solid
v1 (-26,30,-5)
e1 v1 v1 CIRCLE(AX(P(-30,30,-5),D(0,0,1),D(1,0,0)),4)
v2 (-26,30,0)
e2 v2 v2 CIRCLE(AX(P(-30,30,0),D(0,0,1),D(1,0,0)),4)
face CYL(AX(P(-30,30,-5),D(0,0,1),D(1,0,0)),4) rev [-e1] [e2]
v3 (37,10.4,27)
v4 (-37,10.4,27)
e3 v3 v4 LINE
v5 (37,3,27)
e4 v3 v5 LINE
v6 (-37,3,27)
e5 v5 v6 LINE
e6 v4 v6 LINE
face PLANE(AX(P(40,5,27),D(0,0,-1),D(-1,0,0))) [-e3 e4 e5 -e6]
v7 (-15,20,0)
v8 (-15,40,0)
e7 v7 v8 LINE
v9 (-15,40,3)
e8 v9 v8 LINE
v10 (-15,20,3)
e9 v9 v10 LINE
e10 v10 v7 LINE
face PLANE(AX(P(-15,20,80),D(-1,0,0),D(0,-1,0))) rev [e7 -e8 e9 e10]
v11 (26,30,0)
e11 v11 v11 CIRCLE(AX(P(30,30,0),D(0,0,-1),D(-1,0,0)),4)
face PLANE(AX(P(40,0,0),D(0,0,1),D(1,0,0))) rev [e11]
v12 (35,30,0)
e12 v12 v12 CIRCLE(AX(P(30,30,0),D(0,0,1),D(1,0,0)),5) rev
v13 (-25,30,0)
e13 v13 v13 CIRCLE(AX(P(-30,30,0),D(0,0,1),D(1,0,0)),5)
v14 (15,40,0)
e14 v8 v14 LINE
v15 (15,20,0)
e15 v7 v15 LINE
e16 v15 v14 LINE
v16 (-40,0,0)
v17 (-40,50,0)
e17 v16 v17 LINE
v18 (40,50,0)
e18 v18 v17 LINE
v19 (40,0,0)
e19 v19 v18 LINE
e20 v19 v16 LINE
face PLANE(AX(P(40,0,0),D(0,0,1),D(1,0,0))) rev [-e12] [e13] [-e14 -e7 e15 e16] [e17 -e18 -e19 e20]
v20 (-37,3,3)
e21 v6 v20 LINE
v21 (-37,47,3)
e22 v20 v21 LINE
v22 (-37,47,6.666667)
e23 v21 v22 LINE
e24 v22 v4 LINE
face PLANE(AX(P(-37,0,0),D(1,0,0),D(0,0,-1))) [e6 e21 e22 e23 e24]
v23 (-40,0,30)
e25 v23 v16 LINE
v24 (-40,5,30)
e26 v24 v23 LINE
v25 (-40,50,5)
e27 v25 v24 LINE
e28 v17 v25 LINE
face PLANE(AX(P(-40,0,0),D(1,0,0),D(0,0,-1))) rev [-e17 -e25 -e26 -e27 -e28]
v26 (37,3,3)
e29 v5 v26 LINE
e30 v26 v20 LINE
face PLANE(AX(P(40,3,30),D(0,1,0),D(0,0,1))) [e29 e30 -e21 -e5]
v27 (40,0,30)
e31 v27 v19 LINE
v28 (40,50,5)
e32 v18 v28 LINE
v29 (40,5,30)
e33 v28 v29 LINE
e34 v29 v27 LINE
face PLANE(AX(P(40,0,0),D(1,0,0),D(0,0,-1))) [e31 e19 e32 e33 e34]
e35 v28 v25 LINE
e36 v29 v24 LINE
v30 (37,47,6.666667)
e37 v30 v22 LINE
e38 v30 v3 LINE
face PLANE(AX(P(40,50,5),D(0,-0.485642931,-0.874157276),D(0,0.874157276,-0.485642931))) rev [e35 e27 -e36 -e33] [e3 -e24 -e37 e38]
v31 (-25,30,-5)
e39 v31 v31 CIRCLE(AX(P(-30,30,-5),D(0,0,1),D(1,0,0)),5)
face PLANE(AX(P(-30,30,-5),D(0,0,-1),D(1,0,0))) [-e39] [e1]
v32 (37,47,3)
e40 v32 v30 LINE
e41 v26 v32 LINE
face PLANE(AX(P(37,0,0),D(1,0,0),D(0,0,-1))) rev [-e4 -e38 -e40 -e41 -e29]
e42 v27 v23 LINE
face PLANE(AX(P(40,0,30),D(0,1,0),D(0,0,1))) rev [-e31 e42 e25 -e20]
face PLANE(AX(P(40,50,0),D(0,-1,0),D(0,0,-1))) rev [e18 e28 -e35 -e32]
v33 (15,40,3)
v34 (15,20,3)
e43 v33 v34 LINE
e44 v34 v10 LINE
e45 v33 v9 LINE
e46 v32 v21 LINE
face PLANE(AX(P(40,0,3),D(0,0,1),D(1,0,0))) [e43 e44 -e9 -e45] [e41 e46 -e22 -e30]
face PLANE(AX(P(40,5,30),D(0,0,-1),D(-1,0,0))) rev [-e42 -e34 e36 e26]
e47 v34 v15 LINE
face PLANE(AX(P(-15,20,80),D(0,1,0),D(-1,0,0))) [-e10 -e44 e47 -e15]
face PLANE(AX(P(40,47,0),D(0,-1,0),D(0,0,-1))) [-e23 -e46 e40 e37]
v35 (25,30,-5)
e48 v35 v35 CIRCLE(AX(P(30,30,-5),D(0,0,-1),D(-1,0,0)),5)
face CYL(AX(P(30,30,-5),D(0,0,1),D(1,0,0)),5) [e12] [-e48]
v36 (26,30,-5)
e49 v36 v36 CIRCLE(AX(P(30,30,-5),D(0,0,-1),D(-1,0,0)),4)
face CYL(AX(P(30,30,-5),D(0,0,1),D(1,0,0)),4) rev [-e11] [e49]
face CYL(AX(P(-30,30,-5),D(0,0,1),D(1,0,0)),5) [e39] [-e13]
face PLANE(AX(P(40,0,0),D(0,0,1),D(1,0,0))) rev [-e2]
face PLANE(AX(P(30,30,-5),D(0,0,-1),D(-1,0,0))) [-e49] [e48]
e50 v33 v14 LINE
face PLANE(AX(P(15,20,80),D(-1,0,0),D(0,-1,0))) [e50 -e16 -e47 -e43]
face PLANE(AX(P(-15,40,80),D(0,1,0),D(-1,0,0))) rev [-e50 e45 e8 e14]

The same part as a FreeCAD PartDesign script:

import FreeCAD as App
import Part
import Sketcher


def faces_at(feature, points):
    """Names of the faces that lie closest to the given points."""
    faces = feature.Shape.Faces
    near = lambda p: min(range(len(faces)), key=lambda i: faces[i].distToShape(Part.Vertex(*p))[0])
    return sorted({f"Face{near(p) + 1}" for p in points})


def add_polygon(sketch, points):
    """Adds a closed chain of lines whose ends are joined by coincident constraints."""
    first, n = sketch.GeometryCount, len(points)
    for a, b in zip(points, points[1:] + points[:1]):
        sketch.addGeometry(Part.LineSegment(App.Vector(*a, 0), App.Vector(*b, 0)), False)
    for i in range(n):
        sketch.addConstraint(Sketcher.Constraint("Coincident", first + i, 2, first + (i + 1) % n, 1))

doc = App.newDocument("Part")
params = doc.addObject("Spreadsheet::Sheet", "Params")
for row, (alias, value) in enumerate([
    ("sketch1_width", "50 mm"),
    ("sketch1_width2", "5 mm"),
    ("sketch1_height", "30 mm"),
    ("pad1_length", "80 mm"),
    ("thickness_wall", "3 mm"),
    ("sketch2_width", "30 mm"),
    ("sketch2_height", "20 mm"),
    ("pocket1_length", "80 mm"),
    ("sketch3_diameter", "10 mm"),
    ("sketch3_diameter2", "8 mm"),
    ("pad2_length", "5 mm"),
], start=1):
    params.set(f"A{row}", alias)
    params.set(f"B{row}", "=" + value)
    params.setAlias(f"B{row}", alias)

body = doc.addObject("PartDesign::Body", "Body")

# Sketch on YZ plane
sketch1 = doc.addObject("Sketcher::SketchObject", "Sketch")
body.addObject(sketch1)
sketch1.AttachmentSupport = (doc.YZ_Plane, [""])
sketch1.MapMode = "FlatFace"
add_polygon(sketch1, [(0, 30), (0, 0), (50, 0), (50, 5), (5, 30)])  # lines 0-4
sketch1.addConstraint(Sketcher.Constraint("Vertical", 0))
sketch1.addConstraint(Sketcher.Constraint("Horizontal", 1))
sketch1.addConstraint(Sketcher.Constraint("Vertical", 2))
sketch1.addConstraint(Sketcher.Constraint("Horizontal", 4))
sketch1.addConstraint(Sketcher.Constraint("Coincident", 0, 2, -1, 1))
sketch1.addConstraint(Sketcher.Constraint("Equal", 4, 2))
sketch1.addConstraint(Sketcher.Constraint("DistanceX", 1, 1, 1, 2, 50.0))
sketch1.addConstraint(Sketcher.Constraint("DistanceX", 4, 2, 4, 1, 5.0))
sketch1.addConstraint(Sketcher.Constraint("DistanceY", 0, 2, 0, 1, 30.0))
sketch1.setExpression("Constraints[11]", "Params.sketch1_width")
sketch1.setExpression("Constraints[12]", "Params.sketch1_width2")
sketch1.setExpression("Constraints[13]", "Params.sketch1_height")
pad1 = doc.addObject("PartDesign::Pad", "Pad")
body.addObject(pad1)
pad1.Profile = sketch1
pad1.setExpression("Length", "Params.pad1_length")
pad1.Midplane = True
doc.recompute()

thickness = doc.addObject("PartDesign::Thickness", "Thickness")
body.addObject(thickness)
thickness.Base = (pad1, faces_at(pad1, [(0, 27.5, 17.5)]))
thickness.setExpression("Value", "Params.thickness_wall")
thickness.Reversed = True
thickness.Join = "Intersection"

# Sketch on XY plane
sketch2 = doc.addObject("Sketcher::SketchObject", "Sketch001")
body.addObject(sketch2)
sketch2.AttachmentSupport = (doc.XY_Plane, [""])
sketch2.MapMode = "FlatFace"
add_polygon(sketch2, [(15, 40), (15, 20), (-15, 20), (-15, 40)])  # lines 0-3
sketch2.addConstraint(Sketcher.Constraint("Vertical", 0))
sketch2.addConstraint(Sketcher.Constraint("Horizontal", 1))
sketch2.addConstraint(Sketcher.Constraint("Vertical", 2))
sketch2.addConstraint(Sketcher.Constraint("Horizontal", 3))
sketch2.addConstraint(Sketcher.Constraint("DistanceX", 1, 2, 1, 1, 30.0))
sketch2.addConstraint(Sketcher.Constraint("DistanceY", 0, 2, 0, 1, 20.0))
sketch2.addConstraint(Sketcher.Constraint("DistanceX", -1, 1, 0, 2, 15.0))
sketch2.addConstraint(Sketcher.Constraint("DistanceY", -1, 1, 0, 2, 20.0))
sketch2.setExpression("Constraints[8]", "Params.sketch2_width")
sketch2.setExpression("Constraints[9]", "Params.sketch2_height")
pocket1 = doc.addObject("PartDesign::Pocket", "Pocket")
body.addObject(pocket1)
pocket1.Profile = sketch2
pocket1.setExpression("Length", "Params.pocket1_length")
pocket1.Reversed = True

# Sketch on XY plane
sketch3 = doc.addObject("Sketcher::SketchObject", "Sketch002")
body.addObject(sketch3)
sketch3.AttachmentSupport = (doc.XY_Plane, [""])
sketch3.MapMode = "FlatFace"
sketch3.addGeometry(Part.Circle(App.Vector(30, 30, 0), App.Vector(0, 0, 1), 5), False)
sketch3.addGeometry(Part.Circle(App.Vector(30, 30, 0), App.Vector(0, 0, 1), 4), False)
sketch3.addConstraint(Sketcher.Constraint("Coincident", 1, 3, 0, 3))
sketch3.addConstraint(Sketcher.Constraint("Diameter", 0, 10.0))
sketch3.addConstraint(Sketcher.Constraint("Diameter", 1, 8.0))
sketch3.addConstraint(Sketcher.Constraint("DistanceX", -1, 1, 0, 3, 30.0))
sketch3.addConstraint(Sketcher.Constraint("DistanceY", -1, 1, 0, 3, 30.0))
sketch3.setExpression("Constraints[1]", "Params.sketch3_diameter")
sketch3.setExpression("Constraints[2]", "Params.sketch3_diameter2")
pad2 = doc.addObject("PartDesign::Pad", "Pad001")
body.addObject(pad2)
pad2.Profile = sketch3
pad2.setExpression("Length", "Params.pad2_length")
pad2.Reversed = True
doc.recompute()

mirrored = doc.addObject("PartDesign::Mirrored", "Mirrored")
body.addObject(mirrored)
mirrored.Originals = [pad2]
mirrored.MirrorPlane = (doc.YZ_Plane, [""])
body.Tip = mirrored

doc.recompute()
